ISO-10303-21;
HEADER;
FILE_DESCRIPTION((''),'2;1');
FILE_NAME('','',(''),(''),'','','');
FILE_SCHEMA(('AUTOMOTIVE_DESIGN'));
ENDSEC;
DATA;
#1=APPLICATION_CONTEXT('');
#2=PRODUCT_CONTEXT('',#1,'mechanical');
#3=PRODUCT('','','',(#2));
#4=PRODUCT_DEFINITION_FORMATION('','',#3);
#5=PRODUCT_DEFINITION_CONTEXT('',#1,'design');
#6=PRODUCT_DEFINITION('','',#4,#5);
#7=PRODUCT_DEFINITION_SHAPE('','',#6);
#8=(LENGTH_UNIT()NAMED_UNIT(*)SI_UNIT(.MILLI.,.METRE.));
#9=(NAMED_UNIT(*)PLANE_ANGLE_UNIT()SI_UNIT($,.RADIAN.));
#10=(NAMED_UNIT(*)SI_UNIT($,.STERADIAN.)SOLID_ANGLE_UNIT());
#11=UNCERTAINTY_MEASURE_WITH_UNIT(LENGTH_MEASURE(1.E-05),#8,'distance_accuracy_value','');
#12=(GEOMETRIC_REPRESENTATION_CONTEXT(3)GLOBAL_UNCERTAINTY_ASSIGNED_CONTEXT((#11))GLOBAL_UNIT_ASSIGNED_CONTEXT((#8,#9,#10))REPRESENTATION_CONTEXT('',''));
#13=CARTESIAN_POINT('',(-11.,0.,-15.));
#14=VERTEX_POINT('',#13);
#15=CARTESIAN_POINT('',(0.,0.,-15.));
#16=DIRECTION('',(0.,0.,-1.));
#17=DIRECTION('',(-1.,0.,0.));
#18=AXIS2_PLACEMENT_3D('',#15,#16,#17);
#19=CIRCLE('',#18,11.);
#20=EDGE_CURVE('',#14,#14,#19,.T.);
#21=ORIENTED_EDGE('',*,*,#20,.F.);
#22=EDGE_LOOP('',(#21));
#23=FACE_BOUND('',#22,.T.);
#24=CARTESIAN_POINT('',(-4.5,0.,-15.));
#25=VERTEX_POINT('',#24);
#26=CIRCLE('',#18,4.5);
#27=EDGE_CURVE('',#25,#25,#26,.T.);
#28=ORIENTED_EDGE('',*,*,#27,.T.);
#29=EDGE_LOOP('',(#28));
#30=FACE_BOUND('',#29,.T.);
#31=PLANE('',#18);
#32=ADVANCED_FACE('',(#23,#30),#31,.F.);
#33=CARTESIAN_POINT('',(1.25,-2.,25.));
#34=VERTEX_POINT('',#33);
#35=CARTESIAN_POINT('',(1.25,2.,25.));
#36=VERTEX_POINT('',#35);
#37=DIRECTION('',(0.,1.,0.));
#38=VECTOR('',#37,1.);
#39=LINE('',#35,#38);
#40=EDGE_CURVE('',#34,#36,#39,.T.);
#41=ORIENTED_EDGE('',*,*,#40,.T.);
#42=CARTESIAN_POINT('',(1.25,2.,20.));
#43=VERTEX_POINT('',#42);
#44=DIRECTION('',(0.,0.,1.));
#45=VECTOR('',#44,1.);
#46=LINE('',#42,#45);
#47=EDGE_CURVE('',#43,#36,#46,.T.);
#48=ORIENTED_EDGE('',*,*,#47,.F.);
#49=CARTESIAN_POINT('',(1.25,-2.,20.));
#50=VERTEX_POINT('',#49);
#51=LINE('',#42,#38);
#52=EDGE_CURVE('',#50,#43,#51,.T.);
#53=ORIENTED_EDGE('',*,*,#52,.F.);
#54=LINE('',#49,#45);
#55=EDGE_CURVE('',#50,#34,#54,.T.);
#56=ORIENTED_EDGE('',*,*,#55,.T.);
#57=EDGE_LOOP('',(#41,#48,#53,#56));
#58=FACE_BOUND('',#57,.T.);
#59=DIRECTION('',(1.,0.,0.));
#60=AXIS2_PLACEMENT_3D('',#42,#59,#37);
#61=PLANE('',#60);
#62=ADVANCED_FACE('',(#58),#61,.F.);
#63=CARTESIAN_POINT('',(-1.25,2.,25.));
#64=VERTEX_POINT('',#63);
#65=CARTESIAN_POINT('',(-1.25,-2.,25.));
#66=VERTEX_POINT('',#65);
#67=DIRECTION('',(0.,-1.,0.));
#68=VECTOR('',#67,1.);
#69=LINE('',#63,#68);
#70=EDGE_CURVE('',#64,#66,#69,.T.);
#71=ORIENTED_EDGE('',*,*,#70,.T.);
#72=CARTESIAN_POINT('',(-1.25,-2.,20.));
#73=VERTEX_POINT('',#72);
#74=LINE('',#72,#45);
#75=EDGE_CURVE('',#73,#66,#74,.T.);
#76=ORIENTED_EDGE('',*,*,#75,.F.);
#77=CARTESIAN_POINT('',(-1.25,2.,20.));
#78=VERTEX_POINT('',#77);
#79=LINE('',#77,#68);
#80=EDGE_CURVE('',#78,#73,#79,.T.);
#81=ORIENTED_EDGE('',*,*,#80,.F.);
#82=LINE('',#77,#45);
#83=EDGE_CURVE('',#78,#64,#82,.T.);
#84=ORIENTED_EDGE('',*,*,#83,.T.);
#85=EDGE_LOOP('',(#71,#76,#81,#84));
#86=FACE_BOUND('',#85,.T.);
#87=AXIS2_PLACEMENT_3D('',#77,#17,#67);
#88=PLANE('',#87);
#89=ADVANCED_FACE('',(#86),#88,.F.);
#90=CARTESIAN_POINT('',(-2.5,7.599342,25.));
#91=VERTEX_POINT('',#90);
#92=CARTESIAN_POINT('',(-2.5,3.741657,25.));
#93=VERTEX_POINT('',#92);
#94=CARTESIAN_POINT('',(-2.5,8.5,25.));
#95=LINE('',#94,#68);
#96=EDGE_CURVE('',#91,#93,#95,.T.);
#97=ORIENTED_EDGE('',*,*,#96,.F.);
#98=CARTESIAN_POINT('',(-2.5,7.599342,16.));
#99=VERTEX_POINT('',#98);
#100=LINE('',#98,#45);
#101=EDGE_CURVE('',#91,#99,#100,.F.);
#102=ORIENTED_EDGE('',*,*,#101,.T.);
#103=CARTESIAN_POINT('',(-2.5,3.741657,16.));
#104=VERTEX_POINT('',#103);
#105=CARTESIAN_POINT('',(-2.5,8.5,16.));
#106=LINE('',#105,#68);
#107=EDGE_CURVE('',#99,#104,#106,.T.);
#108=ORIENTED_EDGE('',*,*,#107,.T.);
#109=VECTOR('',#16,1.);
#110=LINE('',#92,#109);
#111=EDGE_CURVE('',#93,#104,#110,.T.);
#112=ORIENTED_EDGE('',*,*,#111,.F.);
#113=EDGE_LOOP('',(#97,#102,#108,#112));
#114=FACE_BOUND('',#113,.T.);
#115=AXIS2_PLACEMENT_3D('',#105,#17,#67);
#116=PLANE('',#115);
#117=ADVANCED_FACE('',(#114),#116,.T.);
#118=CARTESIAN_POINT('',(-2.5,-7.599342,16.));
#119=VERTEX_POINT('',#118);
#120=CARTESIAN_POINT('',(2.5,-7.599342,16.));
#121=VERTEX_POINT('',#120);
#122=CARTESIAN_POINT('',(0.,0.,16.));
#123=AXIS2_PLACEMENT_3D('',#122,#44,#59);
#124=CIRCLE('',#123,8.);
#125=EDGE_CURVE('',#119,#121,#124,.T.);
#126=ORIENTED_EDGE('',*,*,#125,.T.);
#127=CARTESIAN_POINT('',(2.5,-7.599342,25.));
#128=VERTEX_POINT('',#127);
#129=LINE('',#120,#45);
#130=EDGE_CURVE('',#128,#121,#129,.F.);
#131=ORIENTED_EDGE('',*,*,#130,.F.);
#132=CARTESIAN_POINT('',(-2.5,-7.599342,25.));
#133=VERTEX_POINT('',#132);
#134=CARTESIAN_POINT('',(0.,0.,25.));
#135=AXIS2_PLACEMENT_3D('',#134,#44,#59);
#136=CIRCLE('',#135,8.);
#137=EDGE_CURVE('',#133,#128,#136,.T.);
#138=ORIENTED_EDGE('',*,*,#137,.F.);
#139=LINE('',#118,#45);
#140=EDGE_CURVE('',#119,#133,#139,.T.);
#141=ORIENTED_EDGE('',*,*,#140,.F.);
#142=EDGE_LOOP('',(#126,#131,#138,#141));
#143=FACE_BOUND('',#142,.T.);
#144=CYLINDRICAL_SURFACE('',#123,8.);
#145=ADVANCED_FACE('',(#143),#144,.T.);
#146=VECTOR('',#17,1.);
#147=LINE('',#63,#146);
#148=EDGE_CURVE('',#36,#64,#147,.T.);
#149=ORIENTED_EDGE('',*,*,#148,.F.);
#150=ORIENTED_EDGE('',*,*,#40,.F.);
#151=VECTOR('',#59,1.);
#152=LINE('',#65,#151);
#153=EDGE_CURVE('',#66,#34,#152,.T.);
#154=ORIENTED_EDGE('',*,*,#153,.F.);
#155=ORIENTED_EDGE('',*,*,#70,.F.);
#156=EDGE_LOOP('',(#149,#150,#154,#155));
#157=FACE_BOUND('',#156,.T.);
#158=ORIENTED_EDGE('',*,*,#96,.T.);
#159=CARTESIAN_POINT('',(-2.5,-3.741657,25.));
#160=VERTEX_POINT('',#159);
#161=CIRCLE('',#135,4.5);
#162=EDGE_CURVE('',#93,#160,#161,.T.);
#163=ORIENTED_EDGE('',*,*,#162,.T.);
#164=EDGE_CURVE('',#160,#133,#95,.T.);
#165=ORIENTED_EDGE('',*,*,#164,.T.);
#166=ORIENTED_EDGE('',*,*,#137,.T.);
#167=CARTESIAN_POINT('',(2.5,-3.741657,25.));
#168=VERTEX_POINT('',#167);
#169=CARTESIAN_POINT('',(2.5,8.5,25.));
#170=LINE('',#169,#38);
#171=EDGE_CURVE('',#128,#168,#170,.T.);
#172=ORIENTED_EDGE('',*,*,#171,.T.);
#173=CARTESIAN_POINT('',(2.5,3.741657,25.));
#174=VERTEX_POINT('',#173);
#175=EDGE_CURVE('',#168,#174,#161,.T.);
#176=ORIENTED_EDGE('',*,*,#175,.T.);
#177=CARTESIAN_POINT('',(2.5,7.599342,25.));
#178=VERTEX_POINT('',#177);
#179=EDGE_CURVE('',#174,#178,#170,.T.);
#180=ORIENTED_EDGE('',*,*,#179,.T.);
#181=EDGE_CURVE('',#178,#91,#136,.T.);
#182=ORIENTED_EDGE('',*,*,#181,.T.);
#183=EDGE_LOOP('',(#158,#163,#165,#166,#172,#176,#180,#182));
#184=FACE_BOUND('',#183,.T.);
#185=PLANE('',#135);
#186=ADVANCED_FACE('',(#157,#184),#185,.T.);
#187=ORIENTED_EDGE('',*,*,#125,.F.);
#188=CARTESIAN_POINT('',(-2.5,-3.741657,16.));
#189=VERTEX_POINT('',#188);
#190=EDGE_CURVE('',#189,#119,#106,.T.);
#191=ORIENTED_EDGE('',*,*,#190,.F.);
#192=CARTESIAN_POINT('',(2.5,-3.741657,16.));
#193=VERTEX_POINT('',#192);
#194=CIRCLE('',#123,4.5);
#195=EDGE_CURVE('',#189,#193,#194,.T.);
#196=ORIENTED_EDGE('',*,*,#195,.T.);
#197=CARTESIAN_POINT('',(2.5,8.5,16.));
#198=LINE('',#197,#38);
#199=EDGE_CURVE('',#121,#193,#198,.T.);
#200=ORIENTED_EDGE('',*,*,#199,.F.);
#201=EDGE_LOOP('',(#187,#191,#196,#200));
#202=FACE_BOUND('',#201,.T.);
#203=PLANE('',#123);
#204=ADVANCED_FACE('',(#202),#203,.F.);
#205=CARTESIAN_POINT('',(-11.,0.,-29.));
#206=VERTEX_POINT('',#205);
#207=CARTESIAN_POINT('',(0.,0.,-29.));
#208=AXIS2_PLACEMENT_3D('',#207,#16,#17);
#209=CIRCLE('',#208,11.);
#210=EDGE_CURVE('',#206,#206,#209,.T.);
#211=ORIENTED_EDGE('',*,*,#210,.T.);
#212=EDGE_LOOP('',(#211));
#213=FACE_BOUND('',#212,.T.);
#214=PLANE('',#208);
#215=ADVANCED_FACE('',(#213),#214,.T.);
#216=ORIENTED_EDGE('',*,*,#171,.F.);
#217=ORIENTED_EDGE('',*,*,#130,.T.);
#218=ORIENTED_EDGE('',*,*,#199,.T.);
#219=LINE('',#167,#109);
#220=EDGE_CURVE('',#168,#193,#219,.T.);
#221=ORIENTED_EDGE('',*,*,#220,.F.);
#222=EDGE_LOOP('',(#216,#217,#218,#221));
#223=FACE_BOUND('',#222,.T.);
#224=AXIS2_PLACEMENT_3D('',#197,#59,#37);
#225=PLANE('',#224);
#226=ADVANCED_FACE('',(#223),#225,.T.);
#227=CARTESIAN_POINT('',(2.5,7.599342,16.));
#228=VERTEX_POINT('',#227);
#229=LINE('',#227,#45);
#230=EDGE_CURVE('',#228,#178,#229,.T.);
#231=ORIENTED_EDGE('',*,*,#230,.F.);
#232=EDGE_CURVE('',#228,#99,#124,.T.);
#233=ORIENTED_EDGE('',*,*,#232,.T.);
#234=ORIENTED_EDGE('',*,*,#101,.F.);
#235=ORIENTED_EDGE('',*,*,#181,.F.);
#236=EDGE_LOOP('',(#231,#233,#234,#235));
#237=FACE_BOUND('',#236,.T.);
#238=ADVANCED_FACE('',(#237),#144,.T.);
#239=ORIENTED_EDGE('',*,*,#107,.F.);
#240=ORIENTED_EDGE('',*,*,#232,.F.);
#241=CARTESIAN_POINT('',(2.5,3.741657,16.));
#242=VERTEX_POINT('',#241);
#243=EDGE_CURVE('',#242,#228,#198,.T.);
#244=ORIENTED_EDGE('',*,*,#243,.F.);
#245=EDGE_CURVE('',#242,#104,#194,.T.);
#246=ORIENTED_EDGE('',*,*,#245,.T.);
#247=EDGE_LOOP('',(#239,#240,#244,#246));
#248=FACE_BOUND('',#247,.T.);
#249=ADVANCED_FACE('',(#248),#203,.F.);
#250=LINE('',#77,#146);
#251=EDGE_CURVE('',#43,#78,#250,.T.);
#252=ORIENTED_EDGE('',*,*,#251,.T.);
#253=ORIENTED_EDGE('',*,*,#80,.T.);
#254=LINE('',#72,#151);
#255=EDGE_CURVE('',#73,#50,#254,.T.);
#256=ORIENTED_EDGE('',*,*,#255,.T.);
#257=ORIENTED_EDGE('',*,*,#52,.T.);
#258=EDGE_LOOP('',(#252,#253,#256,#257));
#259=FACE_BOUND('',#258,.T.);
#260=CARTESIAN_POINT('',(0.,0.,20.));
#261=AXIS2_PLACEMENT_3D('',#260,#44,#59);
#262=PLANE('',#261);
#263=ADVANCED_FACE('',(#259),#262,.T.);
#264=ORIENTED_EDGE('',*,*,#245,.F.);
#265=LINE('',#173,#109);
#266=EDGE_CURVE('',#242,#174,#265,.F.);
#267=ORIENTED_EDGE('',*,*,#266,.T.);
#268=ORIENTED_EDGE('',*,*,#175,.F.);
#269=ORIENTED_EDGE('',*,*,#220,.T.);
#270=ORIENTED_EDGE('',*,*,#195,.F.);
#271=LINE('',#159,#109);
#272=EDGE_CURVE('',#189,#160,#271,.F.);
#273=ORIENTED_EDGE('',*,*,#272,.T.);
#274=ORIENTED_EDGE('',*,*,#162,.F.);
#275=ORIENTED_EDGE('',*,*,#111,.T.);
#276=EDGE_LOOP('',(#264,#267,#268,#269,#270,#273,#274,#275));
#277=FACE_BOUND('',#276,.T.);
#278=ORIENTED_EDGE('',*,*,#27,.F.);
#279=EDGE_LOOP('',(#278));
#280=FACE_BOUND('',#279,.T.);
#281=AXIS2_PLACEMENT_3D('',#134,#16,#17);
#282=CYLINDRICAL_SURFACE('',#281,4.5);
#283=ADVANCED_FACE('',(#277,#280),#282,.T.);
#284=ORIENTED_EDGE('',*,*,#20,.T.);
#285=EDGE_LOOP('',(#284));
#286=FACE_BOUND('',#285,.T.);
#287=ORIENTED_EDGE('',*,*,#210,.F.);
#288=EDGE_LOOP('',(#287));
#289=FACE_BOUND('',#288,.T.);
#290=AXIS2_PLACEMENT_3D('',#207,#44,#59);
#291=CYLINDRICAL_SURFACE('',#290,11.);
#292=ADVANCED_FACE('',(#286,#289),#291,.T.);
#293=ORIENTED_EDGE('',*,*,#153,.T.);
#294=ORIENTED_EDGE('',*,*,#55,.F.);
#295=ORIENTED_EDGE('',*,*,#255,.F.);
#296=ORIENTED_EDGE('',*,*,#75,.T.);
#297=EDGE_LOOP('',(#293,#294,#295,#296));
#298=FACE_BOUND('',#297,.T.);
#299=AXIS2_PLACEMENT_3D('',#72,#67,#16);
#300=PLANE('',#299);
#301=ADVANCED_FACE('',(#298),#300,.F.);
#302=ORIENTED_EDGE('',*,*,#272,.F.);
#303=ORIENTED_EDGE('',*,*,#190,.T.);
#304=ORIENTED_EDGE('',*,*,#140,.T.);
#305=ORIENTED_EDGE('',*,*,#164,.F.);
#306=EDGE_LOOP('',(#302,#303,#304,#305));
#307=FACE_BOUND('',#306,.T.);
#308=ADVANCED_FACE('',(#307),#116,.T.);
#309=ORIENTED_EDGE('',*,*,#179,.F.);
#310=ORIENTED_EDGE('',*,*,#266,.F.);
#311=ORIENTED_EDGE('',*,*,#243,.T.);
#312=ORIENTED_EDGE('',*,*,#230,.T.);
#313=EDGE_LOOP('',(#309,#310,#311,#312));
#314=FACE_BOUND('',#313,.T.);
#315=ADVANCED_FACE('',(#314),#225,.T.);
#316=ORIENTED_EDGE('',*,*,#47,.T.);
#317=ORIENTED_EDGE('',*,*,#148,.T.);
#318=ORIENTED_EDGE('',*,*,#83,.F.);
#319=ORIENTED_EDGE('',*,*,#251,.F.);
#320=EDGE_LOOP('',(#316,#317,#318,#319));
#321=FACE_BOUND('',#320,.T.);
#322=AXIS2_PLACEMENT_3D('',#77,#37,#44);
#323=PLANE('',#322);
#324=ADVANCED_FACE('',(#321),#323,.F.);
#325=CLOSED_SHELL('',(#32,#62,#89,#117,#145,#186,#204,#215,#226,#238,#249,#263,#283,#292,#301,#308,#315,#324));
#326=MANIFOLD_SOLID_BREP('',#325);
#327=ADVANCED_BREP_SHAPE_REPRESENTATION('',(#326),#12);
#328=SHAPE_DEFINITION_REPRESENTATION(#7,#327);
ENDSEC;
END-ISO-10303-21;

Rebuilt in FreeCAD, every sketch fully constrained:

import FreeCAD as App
import Part
import Sketcher

doc = App.newDocument("Part")
body = doc.addObject("PartDesign::Body", "Body")

sketch1 = body.newObject("Sketcher::SketchObject", "Sketch")
sketch1.AttachmentSupport = (doc.getObject("XY_Plane"), [""])
sketch1.MapMode = "FlatFace"
sketch1.addGeometry(Part.Circle(App.Vector(0, 0, 0), App.Vector(0, 0, 1), 4.5), False)
sketch1.addConstraint([
    Sketcher.Constraint("Coincident", 0, 3, -1, 1),
    Sketcher.Constraint("Diameter", 0, 9.0),
])
pad1 = body.newObject("PartDesign::Pad", "Pad")
pad1.Profile = sketch1
pad1.Length = 25

sketch2 = body.newObject("Sketcher::SketchObject", "Sketch001")
sketch2.AttachmentSupport = (doc.getObject("XY_Plane"), [""])
sketch2.MapMode = "FlatFace"
sketch2.AttachmentOffset = App.Placement(App.Vector(0, 0, 25), App.Rotation())
sketch2.addGeometry([
    Part.LineSegment(App.Vector(-2.5, 8.5, 0), App.Vector(-2.5, -8.5, 0)),
    Part.LineSegment(App.Vector(-2.5, -8.5, 0), App.Vector(2.5, -8.5, 0)),
    Part.LineSegment(App.Vector(2.5, -8.5, 0), App.Vector(2.5, 8.5, 0)),
    Part.LineSegment(App.Vector(2.5, 8.5, 0), App.Vector(-2.5, 8.5, 0)),
], False)
sketch2.addConstraint([
    Sketcher.Constraint("Coincident", 0, 2, 1, 1),
    Sketcher.Constraint("Coincident", 1, 2, 2, 1),
    Sketcher.Constraint("Coincident", 2, 2, 3, 1),
    Sketcher.Constraint("Coincident", 3, 2, 0, 1),
    Sketcher.Constraint("Vertical", 0),
    Sketcher.Constraint("Horizontal", 1),
    Sketcher.Constraint("Vertical", 2),
    Sketcher.Constraint("Horizontal", 3),
    Sketcher.Constraint("Symmetric", 0, 2, 2, 2, -1, 1),
    Sketcher.Constraint("DistanceX", 1, 1, 1, 2, 5.0),
    Sketcher.Constraint("DistanceY", 0, 2, 0, 1, 17.0),
])
pad2 = body.newObject("PartDesign::Pad", "Pad001")
pad2.Profile = sketch2
pad2.Length = 9
pad2.Reversed = True

sketch3 = body.newObject("Sketcher::SketchObject", "Sketch002")
sketch3.AttachmentSupport = (doc.getObject("XY_Plane"), [""])
sketch3.MapMode = "FlatFace"
sketch3.AttachmentOffset = App.Placement(App.Vector(0, 0, 25), App.Rotation())
sketch3.addGeometry([
    Part.Circle(App.Vector(0, 0, 0), App.Vector(0, 0, 1), 11),
    Part.Circle(App.Vector(0, 0, 0), App.Vector(0, 0, 1), 8),
], False)
sketch3.addConstraint([
    Sketcher.Constraint("Coincident", 0, 3, -1, 1),
    Sketcher.Constraint("Coincident", 1, 3, -1, 1),
    Sketcher.Constraint("Diameter", 0, 22.0),
    Sketcher.Constraint("Diameter", 1, 16.0),
])
pocket1 = body.newObject("PartDesign::Pocket", "Pocket")
pocket1.Profile = sketch3
pocket1.Length = 9

sketch4 = body.newObject("Sketcher::SketchObject", "Sketch003")
sketch4.AttachmentSupport = (doc.getObject("XY_Plane"), [""])
sketch4.MapMode = "FlatFace"
sketch4.addGeometry(Part.Circle(App.Vector(0, 0, 0), App.Vector(0, 0, 1), 4.5), False)
sketch4.addConstraint([
    Sketcher.Constraint("Coincident", 0, 3, -1, 1),
    Sketcher.Constraint("Diameter", 0, 9.0),
])
pad3 = body.newObject("PartDesign::Pad", "Pad002")
pad3.Profile = sketch4
pad3.Length = 2
pad3.Reversed = True

sketch5 = body.newObject("Sketcher::SketchObject", "Sketch004")
sketch5.AttachmentSupport = (doc.getObject("XY_Plane"), [""])
sketch5.MapMode = "FlatFace"
sketch5.AttachmentOffset = App.Placement(App.Vector(0, 0, 25), App.Rotation())
sketch5.addGeometry([
    Part.LineSegment(App.Vector(-1.25, 2, 0), App.Vector(-1.25, -2, 0)),
    Part.LineSegment(App.Vector(-1.25, -2, 0), App.Vector(1.25, -2, 0)),
    Part.LineSegment(App.Vector(1.25, -2, 0), App.Vector(1.25, 2, 0)),
    Part.LineSegment(App.Vector(1.25, 2, 0), App.Vector(-1.25, 2, 0)),
], False)
sketch5.addConstraint([
    Sketcher.Constraint("Coincident", 0, 2, 1, 1),
    Sketcher.Constraint("Coincident", 1, 2, 2, 1),
    Sketcher.Constraint("Coincident", 2, 2, 3, 1),
    Sketcher.Constraint("Coincident", 3, 2, 0, 1),
    Sketcher.Constraint("Vertical", 0),
    Sketcher.Constraint("Horizontal", 1),
    Sketcher.Constraint("Vertical", 2),
    Sketcher.Constraint("Horizontal", 3),
    Sketcher.Constraint("Symmetric", 0, 2, 2, 2, -1, 1),
    Sketcher.Constraint("DistanceY", 0, 2, 0, 1, 4.0),
    Sketcher.Constraint("DistanceX", 1, 1, 1, 2, 2.5),
])
pocket2 = body.newObject("PartDesign::Pocket", "Pocket001")
pocket2.Profile = sketch5
pocket2.Length = 5

sketch6 = body.newObject("Sketcher::SketchObject", "Sketch005")
sketch6.AttachmentSupport = (doc.getObject("XY_Plane"), [""])
sketch6.MapMode = "FlatFace"
sketch6.AttachmentOffset = App.Placement(App.Vector(0, 0, -2), App.Rotation())
sketch6.addGeometry(Part.Circle(App.Vector(0, 0, 0), App.Vector(0, 0, 1), 4.5), False)
sketch6.addConstraint([
    Sketcher.Constraint("Coincident", 0, 3, -1, 1),
    Sketcher.Constraint("Diameter", 0, 9.0),
])
pad4 = body.newObject("PartDesign::Pad", "Pad003")
pad4.Profile = sketch6
pad4.Length = 13
pad4.Reversed = True

sketch7 = body.newObject("Sketcher::SketchObject", "Sketch006")
sketch7.AttachmentSupport = (doc.getObject("XY_Plane"), [""])
sketch7.MapMode = "FlatFace"
sketch7.AttachmentOffset = App.Placement(App.Vector(0, 0, -15), App.Rotation())
sketch7.addGeometry(Part.Circle(App.Vector(0, 0, 0), App.Vector(0, 0, 1), 11), False)
sketch7.addConstraint([
    Sketcher.Constraint("Coincident", 0, 3, -1, 1),
    Sketcher.Constraint("Diameter", 0, 22.0),
])
pad5 = body.newObject("PartDesign::Pad", "Pad004")
pad5.Profile = sketch7
pad5.Length = 14
pad5.Reversed = True

doc.recompute()
